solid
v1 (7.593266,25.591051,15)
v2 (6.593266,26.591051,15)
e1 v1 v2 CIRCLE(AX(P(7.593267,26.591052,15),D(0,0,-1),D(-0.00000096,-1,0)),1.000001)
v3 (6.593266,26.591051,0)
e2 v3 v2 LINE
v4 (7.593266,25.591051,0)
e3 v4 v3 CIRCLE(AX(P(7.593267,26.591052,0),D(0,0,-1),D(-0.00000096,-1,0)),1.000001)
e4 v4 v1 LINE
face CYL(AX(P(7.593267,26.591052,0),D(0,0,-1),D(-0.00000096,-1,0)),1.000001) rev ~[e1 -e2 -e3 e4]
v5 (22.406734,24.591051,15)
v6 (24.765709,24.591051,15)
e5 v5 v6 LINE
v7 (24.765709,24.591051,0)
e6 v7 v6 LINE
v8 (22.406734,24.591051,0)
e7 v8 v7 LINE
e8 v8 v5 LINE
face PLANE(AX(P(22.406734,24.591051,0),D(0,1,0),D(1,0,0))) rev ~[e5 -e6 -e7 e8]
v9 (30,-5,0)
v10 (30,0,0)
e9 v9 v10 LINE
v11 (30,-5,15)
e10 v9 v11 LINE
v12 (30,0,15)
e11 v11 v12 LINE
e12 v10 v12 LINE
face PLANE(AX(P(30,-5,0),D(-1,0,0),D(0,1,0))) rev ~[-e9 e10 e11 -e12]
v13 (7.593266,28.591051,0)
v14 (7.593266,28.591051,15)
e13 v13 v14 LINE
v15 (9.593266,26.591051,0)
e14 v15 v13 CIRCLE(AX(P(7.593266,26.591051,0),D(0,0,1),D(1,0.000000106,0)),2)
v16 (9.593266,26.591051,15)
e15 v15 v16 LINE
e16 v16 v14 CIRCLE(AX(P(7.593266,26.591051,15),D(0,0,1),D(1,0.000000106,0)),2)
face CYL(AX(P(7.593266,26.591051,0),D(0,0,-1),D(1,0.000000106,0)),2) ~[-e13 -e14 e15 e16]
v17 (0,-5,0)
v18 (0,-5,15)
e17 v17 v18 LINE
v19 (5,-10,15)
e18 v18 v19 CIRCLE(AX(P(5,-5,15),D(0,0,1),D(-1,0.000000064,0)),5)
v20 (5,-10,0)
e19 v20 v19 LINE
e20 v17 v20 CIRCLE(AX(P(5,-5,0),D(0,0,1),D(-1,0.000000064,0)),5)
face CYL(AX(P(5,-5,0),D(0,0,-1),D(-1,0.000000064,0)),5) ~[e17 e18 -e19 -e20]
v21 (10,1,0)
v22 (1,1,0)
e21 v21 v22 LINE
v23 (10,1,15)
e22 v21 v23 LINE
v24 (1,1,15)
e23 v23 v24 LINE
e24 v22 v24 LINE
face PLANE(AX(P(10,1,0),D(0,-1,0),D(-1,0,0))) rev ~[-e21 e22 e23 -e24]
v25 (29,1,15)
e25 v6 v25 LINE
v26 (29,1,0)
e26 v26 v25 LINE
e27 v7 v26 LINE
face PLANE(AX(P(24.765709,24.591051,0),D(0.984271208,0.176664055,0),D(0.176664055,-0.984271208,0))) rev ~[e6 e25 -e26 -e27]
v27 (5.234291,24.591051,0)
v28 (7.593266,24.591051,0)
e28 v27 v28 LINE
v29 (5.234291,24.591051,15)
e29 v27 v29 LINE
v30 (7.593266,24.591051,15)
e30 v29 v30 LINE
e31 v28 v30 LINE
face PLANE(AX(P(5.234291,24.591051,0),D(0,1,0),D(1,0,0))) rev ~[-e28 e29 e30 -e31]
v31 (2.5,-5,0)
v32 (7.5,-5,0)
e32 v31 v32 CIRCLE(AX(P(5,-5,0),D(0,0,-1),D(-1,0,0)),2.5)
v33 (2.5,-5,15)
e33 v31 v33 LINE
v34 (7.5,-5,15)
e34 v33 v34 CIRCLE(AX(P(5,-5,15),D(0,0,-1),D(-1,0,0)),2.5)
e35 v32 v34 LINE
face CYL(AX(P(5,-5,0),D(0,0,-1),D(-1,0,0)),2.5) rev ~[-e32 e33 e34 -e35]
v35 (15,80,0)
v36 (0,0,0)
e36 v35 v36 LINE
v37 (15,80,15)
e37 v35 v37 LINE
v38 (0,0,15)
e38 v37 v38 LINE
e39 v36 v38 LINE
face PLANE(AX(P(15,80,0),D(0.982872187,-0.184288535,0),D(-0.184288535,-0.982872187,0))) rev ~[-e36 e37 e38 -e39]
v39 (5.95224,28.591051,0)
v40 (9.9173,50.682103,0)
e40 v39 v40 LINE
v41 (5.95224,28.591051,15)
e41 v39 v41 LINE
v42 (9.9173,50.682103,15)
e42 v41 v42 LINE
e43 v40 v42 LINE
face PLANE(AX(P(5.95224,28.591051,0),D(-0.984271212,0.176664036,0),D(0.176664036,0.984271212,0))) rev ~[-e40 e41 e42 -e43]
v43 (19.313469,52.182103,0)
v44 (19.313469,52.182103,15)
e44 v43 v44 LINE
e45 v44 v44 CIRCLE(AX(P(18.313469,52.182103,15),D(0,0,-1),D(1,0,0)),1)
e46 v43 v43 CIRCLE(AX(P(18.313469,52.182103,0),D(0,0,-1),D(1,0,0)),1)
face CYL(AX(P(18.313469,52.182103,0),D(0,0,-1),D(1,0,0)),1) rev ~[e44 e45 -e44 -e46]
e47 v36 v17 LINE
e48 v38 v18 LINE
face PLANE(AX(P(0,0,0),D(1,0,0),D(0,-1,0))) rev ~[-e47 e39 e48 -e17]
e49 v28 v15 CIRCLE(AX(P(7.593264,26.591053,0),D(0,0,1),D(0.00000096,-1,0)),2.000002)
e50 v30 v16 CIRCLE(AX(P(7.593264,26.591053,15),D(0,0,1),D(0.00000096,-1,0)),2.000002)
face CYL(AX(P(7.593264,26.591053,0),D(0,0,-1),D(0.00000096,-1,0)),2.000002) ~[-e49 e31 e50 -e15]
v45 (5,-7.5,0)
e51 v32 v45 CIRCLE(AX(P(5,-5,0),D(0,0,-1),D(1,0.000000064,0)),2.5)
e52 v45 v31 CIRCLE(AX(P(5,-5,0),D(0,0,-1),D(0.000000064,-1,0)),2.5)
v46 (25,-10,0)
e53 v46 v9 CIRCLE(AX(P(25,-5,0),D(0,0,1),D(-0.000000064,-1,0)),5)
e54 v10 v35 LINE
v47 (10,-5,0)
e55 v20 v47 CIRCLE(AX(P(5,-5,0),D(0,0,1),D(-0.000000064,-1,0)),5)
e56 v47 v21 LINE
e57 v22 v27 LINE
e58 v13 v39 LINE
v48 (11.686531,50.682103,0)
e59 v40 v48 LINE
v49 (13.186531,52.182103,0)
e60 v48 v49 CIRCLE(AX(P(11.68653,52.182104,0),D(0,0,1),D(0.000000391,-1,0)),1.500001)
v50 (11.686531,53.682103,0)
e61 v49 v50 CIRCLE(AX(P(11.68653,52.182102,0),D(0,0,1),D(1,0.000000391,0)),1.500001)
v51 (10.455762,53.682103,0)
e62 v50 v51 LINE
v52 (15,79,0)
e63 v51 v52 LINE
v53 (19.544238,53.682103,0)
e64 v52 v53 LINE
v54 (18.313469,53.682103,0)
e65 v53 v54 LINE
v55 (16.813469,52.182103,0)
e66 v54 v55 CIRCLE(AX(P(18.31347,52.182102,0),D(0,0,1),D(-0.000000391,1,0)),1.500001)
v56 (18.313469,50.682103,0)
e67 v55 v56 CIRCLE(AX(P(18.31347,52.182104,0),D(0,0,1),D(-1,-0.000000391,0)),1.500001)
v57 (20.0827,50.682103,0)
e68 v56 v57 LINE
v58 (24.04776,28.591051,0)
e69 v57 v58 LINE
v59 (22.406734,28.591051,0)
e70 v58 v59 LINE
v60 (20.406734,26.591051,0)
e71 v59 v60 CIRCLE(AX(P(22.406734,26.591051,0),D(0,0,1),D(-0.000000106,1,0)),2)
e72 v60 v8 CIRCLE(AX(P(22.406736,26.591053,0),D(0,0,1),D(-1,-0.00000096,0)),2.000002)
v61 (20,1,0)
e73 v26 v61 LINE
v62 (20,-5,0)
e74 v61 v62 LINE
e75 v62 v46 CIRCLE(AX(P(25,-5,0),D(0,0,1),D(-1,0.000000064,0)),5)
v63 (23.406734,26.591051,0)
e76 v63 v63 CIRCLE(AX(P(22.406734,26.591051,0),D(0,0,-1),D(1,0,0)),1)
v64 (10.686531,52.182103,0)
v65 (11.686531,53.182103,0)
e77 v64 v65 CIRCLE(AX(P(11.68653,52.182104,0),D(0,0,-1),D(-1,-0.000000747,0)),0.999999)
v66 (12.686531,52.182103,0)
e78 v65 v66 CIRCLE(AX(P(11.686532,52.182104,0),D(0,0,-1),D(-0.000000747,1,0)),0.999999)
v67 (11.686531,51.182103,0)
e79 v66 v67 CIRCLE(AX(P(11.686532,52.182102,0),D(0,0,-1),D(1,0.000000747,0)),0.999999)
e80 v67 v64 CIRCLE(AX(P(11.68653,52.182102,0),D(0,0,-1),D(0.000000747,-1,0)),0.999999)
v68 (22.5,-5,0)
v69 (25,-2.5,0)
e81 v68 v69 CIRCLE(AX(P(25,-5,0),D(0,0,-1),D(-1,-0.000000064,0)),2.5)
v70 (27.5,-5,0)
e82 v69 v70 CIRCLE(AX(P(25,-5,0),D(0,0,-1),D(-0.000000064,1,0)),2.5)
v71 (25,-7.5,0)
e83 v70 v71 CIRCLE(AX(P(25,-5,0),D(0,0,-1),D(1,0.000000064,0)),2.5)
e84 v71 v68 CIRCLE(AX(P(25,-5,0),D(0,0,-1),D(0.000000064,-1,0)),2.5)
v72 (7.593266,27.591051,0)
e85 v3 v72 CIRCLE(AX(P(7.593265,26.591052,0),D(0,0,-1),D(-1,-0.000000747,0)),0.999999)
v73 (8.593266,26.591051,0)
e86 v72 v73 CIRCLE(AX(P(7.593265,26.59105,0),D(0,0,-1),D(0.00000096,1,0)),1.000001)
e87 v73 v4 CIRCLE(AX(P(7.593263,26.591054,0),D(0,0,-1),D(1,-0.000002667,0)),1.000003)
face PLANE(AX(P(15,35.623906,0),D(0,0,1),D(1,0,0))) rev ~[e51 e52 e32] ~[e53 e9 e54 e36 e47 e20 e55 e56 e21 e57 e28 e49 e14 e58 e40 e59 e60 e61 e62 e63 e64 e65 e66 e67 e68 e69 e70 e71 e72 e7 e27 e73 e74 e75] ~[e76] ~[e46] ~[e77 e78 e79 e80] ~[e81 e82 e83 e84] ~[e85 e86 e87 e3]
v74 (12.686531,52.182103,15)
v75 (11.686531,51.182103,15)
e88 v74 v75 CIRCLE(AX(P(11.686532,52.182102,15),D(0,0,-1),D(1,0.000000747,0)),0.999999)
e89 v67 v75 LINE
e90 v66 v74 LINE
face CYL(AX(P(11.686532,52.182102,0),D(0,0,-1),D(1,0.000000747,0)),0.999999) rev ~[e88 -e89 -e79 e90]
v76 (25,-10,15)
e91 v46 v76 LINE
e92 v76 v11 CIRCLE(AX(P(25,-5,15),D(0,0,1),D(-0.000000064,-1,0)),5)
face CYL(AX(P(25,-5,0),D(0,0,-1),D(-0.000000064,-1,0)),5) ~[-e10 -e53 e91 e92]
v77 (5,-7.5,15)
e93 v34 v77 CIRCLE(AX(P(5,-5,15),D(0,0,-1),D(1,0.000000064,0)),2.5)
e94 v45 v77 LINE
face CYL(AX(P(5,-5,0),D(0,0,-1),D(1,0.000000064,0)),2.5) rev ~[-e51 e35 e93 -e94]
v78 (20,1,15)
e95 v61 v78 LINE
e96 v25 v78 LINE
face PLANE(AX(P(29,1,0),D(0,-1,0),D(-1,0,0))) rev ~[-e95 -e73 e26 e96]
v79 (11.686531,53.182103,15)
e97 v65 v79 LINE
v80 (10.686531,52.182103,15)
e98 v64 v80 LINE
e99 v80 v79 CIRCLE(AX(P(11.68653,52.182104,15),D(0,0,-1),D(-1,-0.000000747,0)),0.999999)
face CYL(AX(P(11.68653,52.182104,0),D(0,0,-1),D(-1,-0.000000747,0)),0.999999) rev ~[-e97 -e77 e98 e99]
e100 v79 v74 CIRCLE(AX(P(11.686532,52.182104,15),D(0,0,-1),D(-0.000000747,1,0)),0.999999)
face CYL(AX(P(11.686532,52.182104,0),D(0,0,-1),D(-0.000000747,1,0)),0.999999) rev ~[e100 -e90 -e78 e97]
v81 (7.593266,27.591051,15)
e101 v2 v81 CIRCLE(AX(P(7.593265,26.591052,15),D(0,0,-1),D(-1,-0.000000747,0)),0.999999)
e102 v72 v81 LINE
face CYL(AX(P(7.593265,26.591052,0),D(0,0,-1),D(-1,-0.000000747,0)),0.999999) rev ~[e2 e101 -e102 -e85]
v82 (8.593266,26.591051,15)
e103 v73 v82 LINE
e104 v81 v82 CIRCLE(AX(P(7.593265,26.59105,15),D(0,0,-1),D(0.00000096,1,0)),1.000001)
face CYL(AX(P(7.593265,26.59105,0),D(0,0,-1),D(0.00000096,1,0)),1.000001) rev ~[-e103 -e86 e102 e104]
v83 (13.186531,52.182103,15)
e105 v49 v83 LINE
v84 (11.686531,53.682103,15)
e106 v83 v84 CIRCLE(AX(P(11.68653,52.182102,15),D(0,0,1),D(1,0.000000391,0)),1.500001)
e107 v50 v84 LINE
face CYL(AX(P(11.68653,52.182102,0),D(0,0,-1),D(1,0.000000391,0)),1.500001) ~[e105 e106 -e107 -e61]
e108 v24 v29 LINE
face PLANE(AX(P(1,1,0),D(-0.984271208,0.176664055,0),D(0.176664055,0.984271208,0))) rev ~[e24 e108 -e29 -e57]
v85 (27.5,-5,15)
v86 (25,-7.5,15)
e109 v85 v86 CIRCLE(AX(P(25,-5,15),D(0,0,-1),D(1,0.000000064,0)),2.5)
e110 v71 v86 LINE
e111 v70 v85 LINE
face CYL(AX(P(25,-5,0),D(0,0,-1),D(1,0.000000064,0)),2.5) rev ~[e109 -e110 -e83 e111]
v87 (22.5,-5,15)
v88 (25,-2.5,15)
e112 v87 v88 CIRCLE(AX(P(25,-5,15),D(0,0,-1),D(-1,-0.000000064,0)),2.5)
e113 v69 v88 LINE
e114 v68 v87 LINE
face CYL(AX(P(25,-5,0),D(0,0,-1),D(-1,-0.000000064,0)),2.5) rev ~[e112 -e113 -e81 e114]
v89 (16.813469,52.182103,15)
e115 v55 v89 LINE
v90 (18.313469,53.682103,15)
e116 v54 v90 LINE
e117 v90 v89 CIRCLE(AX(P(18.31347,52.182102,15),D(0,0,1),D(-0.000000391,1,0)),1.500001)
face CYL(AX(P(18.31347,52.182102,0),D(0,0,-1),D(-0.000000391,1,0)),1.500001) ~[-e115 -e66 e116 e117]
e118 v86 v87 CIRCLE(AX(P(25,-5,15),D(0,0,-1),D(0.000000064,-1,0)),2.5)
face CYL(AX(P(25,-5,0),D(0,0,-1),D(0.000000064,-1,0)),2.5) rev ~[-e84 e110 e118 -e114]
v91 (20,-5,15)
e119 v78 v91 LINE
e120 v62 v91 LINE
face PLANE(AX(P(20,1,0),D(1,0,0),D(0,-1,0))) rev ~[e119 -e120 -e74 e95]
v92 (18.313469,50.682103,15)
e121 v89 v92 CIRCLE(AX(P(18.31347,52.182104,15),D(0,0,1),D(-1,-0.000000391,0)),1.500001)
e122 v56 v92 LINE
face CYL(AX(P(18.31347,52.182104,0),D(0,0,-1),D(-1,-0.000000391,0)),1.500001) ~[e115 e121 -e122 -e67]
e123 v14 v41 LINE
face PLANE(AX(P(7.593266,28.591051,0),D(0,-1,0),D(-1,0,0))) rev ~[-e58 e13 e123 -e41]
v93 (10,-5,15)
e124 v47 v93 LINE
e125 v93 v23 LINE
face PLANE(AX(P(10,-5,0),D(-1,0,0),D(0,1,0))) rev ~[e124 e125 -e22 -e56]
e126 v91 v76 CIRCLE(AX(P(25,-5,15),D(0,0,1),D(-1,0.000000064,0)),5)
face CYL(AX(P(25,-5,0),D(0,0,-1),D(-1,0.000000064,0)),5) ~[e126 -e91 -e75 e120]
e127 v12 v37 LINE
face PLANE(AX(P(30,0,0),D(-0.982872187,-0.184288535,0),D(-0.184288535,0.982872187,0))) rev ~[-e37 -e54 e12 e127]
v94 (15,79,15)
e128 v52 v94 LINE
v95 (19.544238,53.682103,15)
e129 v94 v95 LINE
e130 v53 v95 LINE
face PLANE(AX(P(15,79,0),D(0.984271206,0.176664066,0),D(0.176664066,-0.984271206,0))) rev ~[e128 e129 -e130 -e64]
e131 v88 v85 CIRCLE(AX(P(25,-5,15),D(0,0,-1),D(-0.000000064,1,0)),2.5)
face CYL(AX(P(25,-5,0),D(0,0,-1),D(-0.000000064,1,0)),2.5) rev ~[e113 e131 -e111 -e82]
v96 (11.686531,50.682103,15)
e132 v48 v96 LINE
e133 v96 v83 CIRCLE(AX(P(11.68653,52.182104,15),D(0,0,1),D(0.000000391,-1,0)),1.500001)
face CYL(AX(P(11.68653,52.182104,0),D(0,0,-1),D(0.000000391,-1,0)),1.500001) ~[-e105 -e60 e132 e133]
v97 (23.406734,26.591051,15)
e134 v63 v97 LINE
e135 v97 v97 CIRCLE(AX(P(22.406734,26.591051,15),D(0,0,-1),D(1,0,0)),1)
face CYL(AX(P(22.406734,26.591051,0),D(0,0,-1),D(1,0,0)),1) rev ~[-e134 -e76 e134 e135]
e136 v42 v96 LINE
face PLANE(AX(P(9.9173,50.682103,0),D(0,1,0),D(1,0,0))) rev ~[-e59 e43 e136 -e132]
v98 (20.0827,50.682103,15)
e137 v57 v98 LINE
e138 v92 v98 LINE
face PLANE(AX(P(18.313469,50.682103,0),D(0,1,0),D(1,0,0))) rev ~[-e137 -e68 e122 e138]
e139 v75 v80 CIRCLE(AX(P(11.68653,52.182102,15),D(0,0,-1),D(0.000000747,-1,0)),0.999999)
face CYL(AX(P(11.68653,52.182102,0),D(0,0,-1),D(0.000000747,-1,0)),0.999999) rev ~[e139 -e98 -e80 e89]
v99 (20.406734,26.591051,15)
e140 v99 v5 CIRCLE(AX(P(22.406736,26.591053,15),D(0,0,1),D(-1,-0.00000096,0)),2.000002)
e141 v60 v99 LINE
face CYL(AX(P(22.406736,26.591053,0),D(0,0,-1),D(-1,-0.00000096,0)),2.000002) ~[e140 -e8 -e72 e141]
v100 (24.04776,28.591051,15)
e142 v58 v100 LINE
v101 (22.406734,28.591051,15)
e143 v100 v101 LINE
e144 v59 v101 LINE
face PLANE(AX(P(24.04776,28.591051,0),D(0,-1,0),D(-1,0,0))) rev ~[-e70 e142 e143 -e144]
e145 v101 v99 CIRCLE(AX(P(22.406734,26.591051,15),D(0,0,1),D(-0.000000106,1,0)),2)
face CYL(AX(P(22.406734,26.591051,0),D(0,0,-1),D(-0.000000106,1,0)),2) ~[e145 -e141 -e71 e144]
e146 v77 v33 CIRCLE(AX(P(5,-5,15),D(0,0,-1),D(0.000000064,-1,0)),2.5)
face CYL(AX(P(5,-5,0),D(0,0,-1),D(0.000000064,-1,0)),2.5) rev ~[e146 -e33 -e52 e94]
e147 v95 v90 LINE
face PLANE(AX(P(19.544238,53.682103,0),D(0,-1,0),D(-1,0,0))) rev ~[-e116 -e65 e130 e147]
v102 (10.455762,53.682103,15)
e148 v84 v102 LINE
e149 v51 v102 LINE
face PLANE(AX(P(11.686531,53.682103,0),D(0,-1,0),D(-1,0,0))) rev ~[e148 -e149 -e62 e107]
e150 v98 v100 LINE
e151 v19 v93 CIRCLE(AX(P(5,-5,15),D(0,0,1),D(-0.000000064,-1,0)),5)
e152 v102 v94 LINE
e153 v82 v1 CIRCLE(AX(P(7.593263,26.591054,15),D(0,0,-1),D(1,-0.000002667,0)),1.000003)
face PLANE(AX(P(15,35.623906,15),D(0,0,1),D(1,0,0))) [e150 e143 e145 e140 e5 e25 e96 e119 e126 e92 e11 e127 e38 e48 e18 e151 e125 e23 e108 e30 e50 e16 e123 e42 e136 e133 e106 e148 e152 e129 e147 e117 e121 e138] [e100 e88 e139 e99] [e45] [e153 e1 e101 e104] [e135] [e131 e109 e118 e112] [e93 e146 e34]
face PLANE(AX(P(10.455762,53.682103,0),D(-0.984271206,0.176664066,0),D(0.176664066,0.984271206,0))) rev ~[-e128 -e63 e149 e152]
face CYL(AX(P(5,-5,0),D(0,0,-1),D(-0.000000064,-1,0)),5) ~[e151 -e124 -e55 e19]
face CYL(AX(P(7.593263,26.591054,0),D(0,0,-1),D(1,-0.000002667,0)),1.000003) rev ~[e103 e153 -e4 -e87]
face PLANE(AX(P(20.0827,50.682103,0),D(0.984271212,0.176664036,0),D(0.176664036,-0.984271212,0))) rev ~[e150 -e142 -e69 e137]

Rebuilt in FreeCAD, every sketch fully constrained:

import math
import FreeCAD as App
import Part
import Sketcher
Q = App.Units.Quantity

doc = App.newDocument("Part")
body = doc.addObject("PartDesign::Body", "Body")

sketch1 = body.newObject("Sketcher::SketchObject", "Sketch")
sketch1.AttachmentSupport = (doc.getObject("XY_Plane"), [""])
sketch1.MapMode = "FlatFace"
sketch1.addGeometry(Part.LineSegment(App.Vector(20.0827, 50.682103, 0), App.Vector(24.04776, 28.591051, 0)), False)
sketch1.addGeometry(Part.LineSegment(App.Vector(24.04776, 28.591051, 0), App.Vector(22.406734, 28.591051, 0)), False)
sketch1.addGeometry(Part.ArcOfCircle(Part.Circle(App.Vector(22.406734, 26.591051, 0), App.Vector(0, 0, 1), 2), math.radians(90.000006), math.radians(179.999994)), False)
sketch1.addGeometry(Part.ArcOfCircle(Part.Circle(App.Vector(22.406736, 26.591053, 0), App.Vector(0, 0, 1), 2.000002), math.radians(-179.999945), math.radians(-90.000055)), False)
sketch1.addGeometry(Part.LineSegment(App.Vector(22.406734, 24.591051, 0), App.Vector(24.765709, 24.591051, 0)), False)
sketch1.addGeometry(Part.LineSegment(App.Vector(24.765709, 24.591051, 0), App.Vector(29, 1, 0)), False)
sketch1.addGeometry(Part.LineSegment(App.Vector(29, 1, 0), App.Vector(20, 1, 0)), False)
sketch1.addGeometry(Part.LineSegment(App.Vector(20, 1, 0), App.Vector(20, -5, 0)), False)
sketch1.addGeometry(Part.ArcOfCircle(Part.Circle(App.Vector(25, -5, 0), App.Vector(0, 0, 1), 5), math.radians(179.999996), math.radians(270.000004)), False)
sketch1.addGeometry(Part.ArcOfCircle(Part.Circle(App.Vector(25, -5, 0), App.Vector(0, 0, 1), 5), math.radians(-90.000004), math.radians(0.000004)), False)
sketch1.addGeometry(Part.LineSegment(App.Vector(30, -5, 0), App.Vector(30, 0, 0)), False)
sketch1.addGeometry(Part.LineSegment(App.Vector(30, 0, 0), App.Vector(15, 80, 0)), False)
sketch1.addGeometry(Part.LineSegment(App.Vector(15, 80, 0), App.Vector(0, 0, 0)), False)
sketch1.addGeometry(Part.LineSegment(App.Vector(0, 0, 0), App.Vector(0, -5, 0)), False)
sketch1.addGeometry(Part.ArcOfCircle(Part.Circle(App.Vector(5, -5, 0), App.Vector(0, 0, 1), 5), math.radians(179.999996), math.radians(270.000004)), False)
sketch1.addGeometry(Part.ArcOfCircle(Part.Circle(App.Vector(5, -5, 0), App.Vector(0, 0, 1), 5), math.radians(-90.000004), math.radians(0.000004)), False)
sketch1.addGeometry(Part.LineSegment(App.Vector(10, -5, 0), App.Vector(10, 1, 0)), False)
sketch1.addGeometry(Part.LineSegment(App.Vector(10, 1, 0), App.Vector(1, 1, 0)), False)
sketch1.addGeometry(Part.LineSegment(App.Vector(1, 1, 0), App.Vector(5.234291, 24.591051, 0)), False)
sketch1.addGeometry(Part.LineSegment(App.Vector(5.234291, 24.591051, 0), App.Vector(7.593266, 24.591051, 0)), False)
sketch1.addGeometry(Part.ArcOfCircle(Part.Circle(App.Vector(7.593264, 26.591053, 0), App.Vector(0, 0, 1), 2.000002), math.radians(-89.999945), math.radians(-0.000055)), False)
sketch1.addGeometry(Part.ArcOfCircle(Part.Circle(App.Vector(7.593266, 26.591051, 0), App.Vector(0, 0, 1), 2), math.radians(0.000006), math.radians(89.999994)), False)
sketch1.addGeometry(Part.LineSegment(App.Vector(7.593266, 28.591051, 0), App.Vector(5.95224, 28.591051, 0)), False)
sketch1.addGeometry(Part.LineSegment(App.Vector(5.95224, 28.591051, 0), App.Vector(9.9173, 50.682103, 0)), False)
sketch1.addGeometry(Part.LineSegment(App.Vector(9.9173, 50.682103, 0), App.Vector(11.686531, 50.682103, 0)), False)
sketch1.addGeometry(Part.ArcOfCircle(Part.Circle(App.Vector(11.68653, 52.182104, 0), App.Vector(0, 0, 1), 1.500001), math.radians(-89.999978), math.radians(-0.000022)), False)
sketch1.addGeometry(Part.ArcOfCircle(Part.Circle(App.Vector(11.68653, 52.182102, 0), App.Vector(0, 0, 1), 1.500001), math.radians(0.000022), math.radians(89.999978)), False)
sketch1.addGeometry(Part.LineSegment(App.Vector(11.686531, 53.682103, 0), App.Vector(10.455762, 53.682103, 0)), False)
sketch1.addGeometry(Part.LineSegment(App.Vector(10.455762, 53.682103, 0), App.Vector(15, 79, 0)), False)
sketch1.addGeometry(Part.LineSegment(App.Vector(15, 79, 0), App.Vector(19.544238, 53.682103, 0)), False)
sketch1.addGeometry(Part.LineSegment(App.Vector(19.544238, 53.682103, 0), App.Vector(18.313469, 53.682103, 0)), False)
sketch1.addGeometry(Part.ArcOfCircle(Part.Circle(App.Vector(18.31347, 52.182102, 0), App.Vector(0, 0, 1), 1.500001), math.radians(90.000022), math.radians(179.999978)), False)
sketch1.addGeometry(Part.ArcOfCircle(Part.Circle(App.Vector(18.31347, 52.182104, 0), App.Vector(0, 0, 1), 1.500001), math.radians(-179.999978), math.radians(-90.000022)), False)
sketch1.addGeometry(Part.LineSegment(App.Vector(18.313469, 50.682103, 0), App.Vector(20.0827, 50.682103, 0)), False)
sketch1.addGeometry(Part.Circle(App.Vector(18.313469, 52.182103, 0), App.Vector(0, 0, 1), 1), False)
sketch1.addGeometry(Part.ArcOfCircle(Part.Circle(App.Vector(5, -5, 0), App.Vector(0, 0, 1), 2.5), math.radians(179.999996), math.radians(270.000004)), False)
sketch1.addGeometry(Part.ArcOfCircle(Part.Circle(App.Vector(5, -5, 0), App.Vector(0, 0, 1), 2.5), math.radians(0), math.radians(180)), False)
sketch1.addGeometry(Part.ArcOfCircle(Part.Circle(App.Vector(5, -5, 0), App.Vector(0, 0, 1), 2.5), math.radians(-90.000004), math.radians(0.000004)), False)
sketch1.addGeometry(Part.ArcOfCircle(Part.Circle(App.Vector(25, -5, 0), App.Vector(0, 0, 1), 2.5), math.radians(89.999996), math.radians(180.000004)), False)
sketch1.addGeometry(Part.ArcOfCircle(Part.Circle(App.Vector(25, -5, 0), App.Vector(0, 0, 1), 2.5), math.radians(-0.000004), math.radians(90.000004)), False)
sketch1.addGeometry(Part.ArcOfCircle(Part.Circle(App.Vector(25, -5, 0), App.Vector(0, 0, 1), 2.5), math.radians(-90.000004), math.radians(0.000004)), False)
sketch1.addGeometry(Part.ArcOfCircle(Part.Circle(App.Vector(25, -5, 0), App.Vector(0, 0, 1), 2.5), math.radians(179.999996), math.radians(270.000004)), False)
sketch1.addGeometry(Part.ArcOfCircle(Part.Circle(App.Vector(7.593267, 26.591052, 0), App.Vector(0, 0, 1), 1.000001), math.radians(-179.999945), math.radians(-90.000055)), False)
sketch1.addGeometry(Part.ArcOfCircle(Part.Circle(App.Vector(7.593265, 26.591052, 0), App.Vector(0, 0, 1), 0.999999), math.radians(89.999957), math.radians(180.000043)), False)
sketch1.addGeometry(Part.ArcOfCircle(Part.Circle(App.Vector(7.593265, 26.59105, 0), App.Vector(0, 0, 1), 1.000001), math.radians(0.000055), math.radians(89.999945)), False)
sketch1.addGeometry(Part.ArcOfCircle(Part.Circle(App.Vector(7.593263, 26.591054, 0), App.Vector(0, 0, 1), 1.000003), math.radians(-89.999847), math.radians(-0.000153)), False)
sketch1.addGeometry(Part.ArcOfCircle(Part.Circle(App.Vector(11.68653, 52.182102, 0), App.Vector(0, 0, 1), 0.999999), math.radians(179.999957), math.radians(270.000043)), False)
sketch1.addGeometry(Part.ArcOfCircle(Part.Circle(App.Vector(11.68653, 52.182104, 0), App.Vector(0, 0, 1), 0.999999), math.radians(89.999957), math.radians(180.000043)), False)
sketch1.addGeometry(Part.ArcOfCircle(Part.Circle(App.Vector(11.686532, 52.182104, 0), App.Vector(0, 0, 1), 0.999999), math.radians(-0.000043), math.radians(90.000043)), False)
sketch1.addGeometry(Part.ArcOfCircle(Part.Circle(App.Vector(11.686532, 52.182102, 0), App.Vector(0, 0, 1), 0.999999), math.radians(-90.000043), math.radians(0.000043)), False)
sketch1.addGeometry(Part.Circle(App.Vector(22.406734, 26.591051, 0), App.Vector(0, 0, 1), 1), False)
sketch1.addConstraint(Sketcher.Constraint("Coincident", 0, 2, 1, 1))
sketch1.addConstraint(Sketcher.Constraint("Tangent", 1, 2, 2, 1))
sketch1.addConstraint(Sketcher.Constraint("Tangent", 2, 2, 3, 1))
sketch1.addConstraint(Sketcher.Constraint("Tangent", 3, 2, 4, 1))
sketch1.addConstraint(Sketcher.Constraint("Coincident", 4, 2, 5, 1))
sketch1.addConstraint(Sketcher.Constraint("Coincident", 5, 2, 6, 1))
sketch1.addConstraint(Sketcher.Constraint("Coincident", 6, 2, 7, 1))
sketch1.addConstraint(Sketcher.Constraint("Tangent", 7, 2, 8, 1))
sketch1.addConstraint(Sketcher.Constraint("Tangent", 8, 2, 9, 1))
sketch1.addConstraint(Sketcher.Constraint("Tangent", 9, 2, 10, 1))
sketch1.addConstraint(Sketcher.Constraint("Coincident", 10, 2, 11, 1))
sketch1.addConstraint(Sketcher.Constraint("Coincident", 11, 2, 12, 1))
sketch1.addConstraint(Sketcher.Constraint("Coincident", 12, 2, 13, 1))
sketch1.addConstraint(Sketcher.Constraint("Tangent", 13, 2, 14, 1))
sketch1.addConstraint(Sketcher.Constraint("Tangent", 14, 2, 15, 1))
sketch1.addConstraint(Sketcher.Constraint("Tangent", 15, 2, 16, 1))
sketch1.addConstraint(Sketcher.Constraint("Coincident", 16, 2, 17, 1))
sketch1.addConstraint(Sketcher.Constraint("Coincident", 17, 2, 18, 1))
sketch1.addConstraint(Sketcher.Constraint("Coincident", 18, 2, 19, 1))
sketch1.addConstraint(Sketcher.Constraint("Tangent", 19, 2, 20, 1))
sketch1.addConstraint(Sketcher.Constraint("Tangent", 20, 2, 21, 1))
sketch1.addConstraint(Sketcher.Constraint("Tangent", 21, 2, 22, 1))
sketch1.addConstraint(Sketcher.Constraint("Coincident", 22, 2, 23, 1))
sketch1.addConstraint(Sketcher.Constraint("Coincident", 23, 2, 24, 1))
sketch1.addConstraint(Sketcher.Constraint("Tangent", 24, 2, 25, 1))
sketch1.addConstraint(Sketcher.Constraint("Tangent", 25, 2, 26, 1))
sketch1.addConstraint(Sketcher.Constraint("Tangent", 26, 2, 27, 1))
sketch1.addConstraint(Sketcher.Constraint("Coincident", 27, 2, 28, 1))
sketch1.addConstraint(Sketcher.Constraint("Coincident", 28, 2, 29, 1))
sketch1.addConstraint(Sketcher.Constraint("Coincident", 29, 2, 30, 1))
sketch1.addConstraint(Sketcher.Constraint("Tangent", 30, 2, 31, 1))
sketch1.addConstraint(Sketcher.Constraint("Tangent", 31, 2, 32, 1))
sketch1.addConstraint(Sketcher.Constraint("Tangent", 32, 2, 33, 1))
sketch1.addConstraint(Sketcher.Constraint("Coincident", 33, 2, 0, 1))
sketch1.addConstraint(Sketcher.Constraint("Tangent", 35, 1, 36, 2))
sketch1.addConstraint(Sketcher.Constraint("Tangent", 36, 1, 37, 2))
sketch1.addConstraint(Sketcher.Constraint("Tangent", 37, 1, 35, 2))
sketch1.addConstraint(Sketcher.Constraint("Tangent", 38, 1, 39, 2))
sketch1.addConstraint(Sketcher.Constraint("Tangent", 39, 1, 40, 2))
sketch1.addConstraint(Sketcher.Constraint("Tangent", 40, 1, 41, 2))
sketch1.addConstraint(Sketcher.Constraint("Tangent", 41, 1, 38, 2))
sketch1.addConstraint(Sketcher.Constraint("Tangent", 42, 1, 43, 2))
sketch1.addConstraint(Sketcher.Constraint("Tangent", 43, 1, 44, 2))
sketch1.addConstraint(Sketcher.Constraint("Coincident", 44, 1, 45, 2))
sketch1.addConstraint(Sketcher.Constraint("Coincident", 45, 1, 42, 2))
sketch1.addConstraint(Sketcher.Constraint("Tangent", 46, 1, 47, 2))
sketch1.addConstraint(Sketcher.Constraint("Tangent", 47, 1, 48, 2))
sketch1.addConstraint(Sketcher.Constraint("Tangent", 48, 1, 49, 2))
sketch1.addConstraint(Sketcher.Constraint("Tangent", 49, 1, 46, 2))
sketch1.addConstraint(Sketcher.Constraint("Horizontal", 1))
sketch1.addConstraint(Sketcher.Constraint("Horizontal", 4))
sketch1.addConstraint(Sketcher.Constraint("Horizontal", 6))
sketch1.addConstraint(Sketcher.Constraint("Vertical", 7))
sketch1.addConstraint(Sketcher.Constraint("Vertical", 10))
sketch1.addConstraint(Sketcher.Constraint("Vertical", 13))
sketch1.addConstraint(Sketcher.Constraint("Vertical", 16))
sketch1.addConstraint(Sketcher.Constraint("Horizontal", 17))
sketch1.addConstraint(Sketcher.Constraint("Horizontal", 19))
sketch1.addConstraint(Sketcher.Constraint("Horizontal", 22))
sketch1.addConstraint(Sketcher.Constraint("Horizontal", 24))
sketch1.addConstraint(Sketcher.Constraint("Horizontal", 27))
sketch1.addConstraint(Sketcher.Constraint("Horizontal", 30))
sketch1.addConstraint(Sketcher.Constraint("Horizontal", 33))
sketch1.addConstraint(Sketcher.Constraint("Coincident", 12, 2, -1, 1))
sketch1.addConstraint(Sketcher.Constraint("Coincident", 34, 3, 31, 3))
sketch1.addConstraint(Sketcher.Constraint("Coincident", 35, 3, 14, 3))
sketch1.addConstraint(Sketcher.Constraint("Coincident", 38, 3, 8, 3))
sketch1.addConstraint(Sketcher.Constraint("Coincident", 42, 3, 20, 3))
sketch1.addConstraint(Sketcher.Constraint("Coincident", 44, 3, 20, 3))
sketch1.addConstraint(Sketcher.Constraint("Coincident", 46, 3, 25, 3))
sketch1.addConstraint(Sketcher.Constraint("Coincident", 50, 3, 2, 3))
sketch1.addConstraint(Sketcher.Constraint("Equal", 2, 3))
sketch1.addConstraint(Sketcher.Constraint("Equal", 8, 9))
sketch1.addConstraint(Sketcher.Constraint("Equal", 9, 14))
sketch1.addConstraint(Sketcher.Constraint("Equal", 14, 15))
sketch1.addConstraint(Sketcher.Constraint("Equal", 3, 20))
sketch1.addConstraint(Sketcher.Constraint("Equal", 20, 21))
sketch1.addConstraint(Sketcher.Constraint("Equal", 25, 26))
sketch1.addConstraint(Sketcher.Constraint("Equal", 26, 31))
sketch1.addConstraint(Sketcher.Constraint("Equal", 31, 32))
sketch1.addConstraint(Sketcher.Constraint("Equal", 37, 38))
sketch1.addConstraint(Sketcher.Constraint("Equal", 38, 39))
sketch1.addConstraint(Sketcher.Constraint("Equal", 34, 42))
sketch1.addConstraint(Sketcher.Constraint("Equal", 44, 45))
sketch1.addConstraint(Sketcher.Constraint("Equal", 44, 46))
sketch1.addConstraint(Sketcher.Constraint("Equal", 46, 47))
sketch1.addConstraint(Sketcher.Constraint("Equal", 49, 50))
sketch1.addConstraint(Sketcher.Constraint("PointOnObject", 10, 2, -1))
sketch1.addConstraint(Sketcher.Constraint("Parallel", 0, 5))
sketch1.addConstraint(Sketcher.Constraint("Parallel", 18, 23))
sketch1.addConstraint(Sketcher.Constraint("Parallel", 23, 28))
sketch1.addConstraint(Sketcher.Constraint("Parallel", 5, 29))
sketch1.addConstraint(Sketcher.Constraint("Horizontal", 9, 3, 14, 3))
sketch1.addConstraint(Sketcher.Constraint("Horizontal", 3, 3, 20, 3))
sketch1.addConstraint(Sketcher.Constraint("Horizontal", 26, 3, 31, 3))
sketch1.addConstraint(Sketcher.Constraint("Horizontal", 50, 3, 2, 2))
sketch1.addConstraint(Sketcher.Constraint("Horizontal", 6, 2, 16, 2))
sketch1.addConstraint(Sketcher.Constraint("Horizontal", 2, 2, 20, 2))
sketch1.addConstraint(Sketcher.Constraint("Horizontal", 49, 3, 25, 2))
sketch1.addConstraint(Sketcher.Constraint("Horizontal", 25, 2, 31, 2))
sketch1.addConstraint(Sketcher.Constraint("Horizontal", 15, 2, 35, 1))
sketch1.addConstraint(Sketcher.Constraint("Horizontal", 35, 1, 36, 1))
sketch1.addConstraint(Sketcher.Constraint("Horizontal", 36, 1, 39, 1))
sketch1.addConstraint(Sketcher.Constraint("Horizontal", 39, 1, 41, 1))
sketch1.addConstraint(Sketcher.Constraint("Horizontal", 20, 2, 42, 1))
sketch1.addConstraint(Sketcher.Constraint("Horizontal", 42, 1, 44, 1))
sketch1.addConstraint(Sketcher.Constraint("Horizontal", 31, 2, 46, 1))
sketch1.addConstraint(Sketcher.Constraint("Horizontal", 46, 1, 48, 1))
sketch1.addConstraint(Sketcher.Constraint("Vertical", 41, 3, 8, 2))
sketch1.addConstraint(Sketcher.Constraint("Vertical", 37, 3, 14, 2))
sketch1.addConstraint(Sketcher.Constraint("Vertical", 11, 2, 28, 2))
sketch1.addConstraint(Sketcher.Constraint("Vertical", 14, 2, 37, 1))
sketch1.addConstraint(Sketcher.Constraint("Vertical", 8, 2, 38, 1))
sketch1.addConstraint(Sketcher.Constraint("Vertical", 38, 1, 40, 1))
sketch1.addConstraint(Sketcher.Constraint("Vertical", 21, 2, 43, 1))
sketch1.addConstraint(Sketcher.Constraint("Vertical", 43, 1, 45, 1))
sketch1.addConstraint(Sketcher.Constraint("Vertical", 26, 2, 47, 1))
sketch1.addConstraint(Sketcher.Constraint("Vertical", 47, 1, 49, 1))
sketch1.addConstraint(Sketcher.Constraint("Equal", 6, 17))
sketch1.addConstraint(Sketcher.Constraint("Equal", 4, 19))
sketch1.addConstraint(Sketcher.Constraint("Equal", 1, 22))
sketch1.addConstraint(Sketcher.Constraint("Equal", 27, 30))
sketch1.addConstraint(Sketcher.Constraint("Equal", 24, 33))
sketch1.addConstraint(Sketcher.Constraint("Equal", 11, 12))
sketch1.addConstraint(Sketcher.Constraint("Diameter", 34, Q("2 mm")))
sketch1.addConstraint(Sketcher.Constraint("Radius", 2, Q("2 mm")))
sketch1.addConstraint(Sketcher.Constraint("Radius", 8, Q("5 mm")))
sketch1.addConstraint(Sketcher.Constraint("Radius", 25, Q("1.500001 mm")))
sketch1.addConstraint(Sketcher.Constraint("Radius", 35, Q("2.5 mm")))
sketch1.addConstraint(Sketcher.Constraint("DistanceX", 6, 2, 6, 1, Q("9 mm")))
sketch1.addConstraint(Sketcher.Constraint("DistanceY", 7, 2, 7, 1, Q("6 mm")))
sketch1.addConstraint(Sketcher.Constraint("DistanceY", 10, 1, 10, 2, Q("5 mm")))
sketch1.addConstraint(Sketcher.Constraint("DistanceX", -1, 1, 8, 3, Q("25 mm")))
sketch1.addConstraint(Sketcher.Constraint("DistanceY", -1, 1, 11, 2, Q("80 mm")))
sketch1.addConstraint(Sketcher.Constraint("DistanceY", -1, 1, 28, 2, Q("79 mm")))
sketch1.addConstraint(Sketcher.Constraint("DistanceX", 24, 1, 24, 2, Q("1.769231 mm")))
sketch1.addConstraint(Sketcher.Constraint("DistanceX", 27, 2, 27, 1, Q("1.230769 mm")))
sketch1.addConstraint(Sketcher.Constraint("DistanceX", -1, 1, 23, 2, Q("9.9173 mm")))
sketch1.addConstraint(Sketcher.Constraint("Distance", 0, Q("22.44407 mm")))
sketch1.addConstraint(Sketcher.Constraint("Distance", 5, Q("23.968039 mm")))
sketch1.addConstraint(Sketcher.Constraint("DistanceX", 1, 2, 1, 1, Q("1.641026 mm")))
pad1 = body.newObject("PartDesign::Pad", "Pad")
pad1.Profile = sketch1
pad1.Length = 15

doc.recompute()
